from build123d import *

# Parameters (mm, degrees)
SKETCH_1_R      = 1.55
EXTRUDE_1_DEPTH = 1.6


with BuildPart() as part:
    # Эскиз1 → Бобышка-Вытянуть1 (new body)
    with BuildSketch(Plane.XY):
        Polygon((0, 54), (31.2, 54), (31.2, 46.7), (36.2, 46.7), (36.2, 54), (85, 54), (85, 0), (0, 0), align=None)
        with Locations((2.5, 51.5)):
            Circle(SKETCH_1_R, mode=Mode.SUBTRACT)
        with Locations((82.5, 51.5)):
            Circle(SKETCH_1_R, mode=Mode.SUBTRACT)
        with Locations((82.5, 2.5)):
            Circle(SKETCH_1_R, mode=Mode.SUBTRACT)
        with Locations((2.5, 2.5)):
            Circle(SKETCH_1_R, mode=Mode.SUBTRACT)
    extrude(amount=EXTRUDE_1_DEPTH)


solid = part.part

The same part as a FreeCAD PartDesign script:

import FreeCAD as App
import Part
import Sketcher
from FreeCAD import Vector
Q = App.Units.Quantity

doc = App.newDocument("Part")
body = doc.addObject("PartDesign::Body", "Body")

sketch1 = doc.addObject("Sketcher::SketchObject", "Sketch")
body.addObject(sketch1)
sketch1.AttachmentSupport = (doc.XY_Plane, [""])
sketch1.MapMode = "FlatFace"
sketch1.addGeometry(Part.LineSegment(Vector(31.2, 54, 0), Vector(0, 54, 0)), False)
sketch1.addGeometry(Part.LineSegment(Vector(0, 54, 0), Vector(0, 0, 0)), False)
sketch1.addGeometry(Part.LineSegment(Vector(0, 0, 0), Vector(85, 0, 0)), False)
sketch1.addGeometry(Part.LineSegment(Vector(85, 0, 0), Vector(85, 54, 0)), False)
sketch1.addGeometry(Part.LineSegment(Vector(85, 54, 0), Vector(36.2, 54, 0)), False)
sketch1.addGeometry(Part.LineSegment(Vector(36.2, 54, 0), Vector(36.2, 46.7, 0)), False)
sketch1.addGeometry(Part.LineSegment(Vector(36.2, 46.7, 0), Vector(31.2, 46.7, 0)), False)
sketch1.addGeometry(Part.LineSegment(Vector(31.2, 46.7, 0), Vector(31.2, 54, 0)), False)
sketch1.addGeometry(Part.Circle(Vector(82.5, 2.5, 0), Vector(0, 0, 1), 1.6), False)
sketch1.addGeometry(Part.Circle(Vector(2.5, 2.5, 0), Vector(0, 0, 1), 1.6), False)
sketch1.addGeometry(Part.Circle(Vector(82.5, 51.5, 0), Vector(0, 0, 1), 1.6), False)
sketch1.addGeometry(Part.Circle(Vector(2.5, 51.5, 0), Vector(0, 0, 1), 1.6), False)
sketch1.addConstraint(Sketcher.Constraint("Coincident", 0, 2, 1, 1))
sketch1.addConstraint(Sketcher.Constraint("Coincident", 1, 2, 2, 1))
sketch1.addConstraint(Sketcher.Constraint("Coincident", 2, 2, 3, 1))
sketch1.addConstraint(Sketcher.Constraint("Coincident", 3, 2, 4, 1))
sketch1.addConstraint(Sketcher.Constraint("Coincident", 4, 2, 5, 1))
sketch1.addConstraint(Sketcher.Constraint("Coincident", 5, 2, 6, 1))
sketch1.addConstraint(Sketcher.Constraint("Coincident", 6, 2, 7, 1))
sketch1.addConstraint(Sketcher.Constraint("Coincident", 7, 2, 0, 1))
sketch1.addConstraint(Sketcher.Constraint("Horizontal", 0))
sketch1.addConstraint(Sketcher.Constraint("Vertical", 1))
sketch1.addConstraint(Sketcher.Constraint("Horizontal", 2))
sketch1.addConstraint(Sketcher.Constraint("Vertical", 3))
sketch1.addConstraint(Sketcher.Constraint("Horizontal", 4))
sketch1.addConstraint(Sketcher.Constraint("Vertical", 5))
sketch1.addConstraint(Sketcher.Constraint("Horizontal", 6))
sketch1.addConstraint(Sketcher.Constraint("Vertical", 7))
sketch1.addConstraint(Sketcher.Constraint("Coincident", 1, 2, -1, 1))
sketch1.addConstraint(Sketcher.Constraint("Equal", 8, 9))
sketch1.addConstraint(Sketcher.Constraint("Equal", 9, 10))
sketch1.addConstraint(Sketcher.Constraint("Equal", 10, 11))
sketch1.addConstraint(Sketcher.Constraint("Horizontal", 8, 3, 9, 3))
sketch1.addConstraint(Sketcher.Constraint("Horizontal", 10, 3, 11, 3))
sketch1.addConstraint(Sketcher.Constraint("Horizontal", 0, 2, 3, 2))
sketch1.addConstraint(Sketcher.Constraint("Vertical", 8, 3, 10, 3))
sketch1.addConstraint(Sketcher.Constraint("Vertical", 9, 3, 11, 3))
sketch1.addConstraint(Sketcher.Constraint("Diameter", 8, Q("3.1 mm")))
sketch1.addConstraint(Sketcher.Constraint("DistanceX", 2, 1, 2, 2, Q("85 mm")))
sketch1.addConstraint(Sketcher.Constraint("DistanceX", 6, 2, 6, 1, Q("5 mm")))
sketch1.addConstraint(Sketcher.Constraint("DistanceY", 1, 2, 1, 1, Q("54 mm")))
sketch1.addConstraint(Sketcher.Constraint("DistanceX", 0, 2, 0, 1, Q("31.2 mm")))
sketch1.addConstraint(Sketcher.Constraint("DistanceY", 5, 2, 5, 1, Q("7.3 mm")))
sketch1.addConstraint(Sketcher.Constraint("DistanceX", 9, 3, 8, 3, Q("80 mm")))
sketch1.addConstraint(Sketcher.Constraint("DistanceY", 8, 3, 10, 3, Q("49 mm")))
sketch1.addConstraint(Sketcher.Constraint("DistanceX", -1, 1, 8, 3, Q("82.5 mm")))
sketch1.addConstraint(Sketcher.Constraint("DistanceY", -1, 1, 8, 3, Q("2.5 mm")))
pad1 = doc.addObject("PartDesign::Pad", "Pad")
body.addObject(pad1)
pad1.Profile = sketch1
pad1.Length = 1.6

doc.recompute()
